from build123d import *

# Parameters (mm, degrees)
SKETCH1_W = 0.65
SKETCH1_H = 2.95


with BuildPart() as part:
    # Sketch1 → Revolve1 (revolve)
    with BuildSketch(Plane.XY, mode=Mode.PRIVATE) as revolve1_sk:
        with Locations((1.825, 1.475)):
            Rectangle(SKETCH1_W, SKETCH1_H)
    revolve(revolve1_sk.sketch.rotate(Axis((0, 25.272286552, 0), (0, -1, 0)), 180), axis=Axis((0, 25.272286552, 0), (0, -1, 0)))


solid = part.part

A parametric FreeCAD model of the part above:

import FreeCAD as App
import Part
import Sketcher


def add_polygon(sketch, points):
    """Adds a closed chain of lines whose ends are joined by coincident constraints."""
    first, n = sketch.GeometryCount, len(points)
    for a, b in zip(points, points[1:] + points[:1]):
        sketch.addGeometry(Part.LineSegment(App.Vector(*a, 0), App.Vector(*b, 0)), False)
    for i in range(n):
        sketch.addConstraint(Sketcher.Constraint("Coincident", first + i, 2, first + (i + 1) % n, 1))

doc = App.newDocument("Part")
body = doc.addObject("PartDesign::Body", "Body")

# Sketch on XY plane
sketch1 = body.newObject("Sketcher::SketchObject", "Sketch")
sketch1.AttachmentSupport = (doc.getObject("XY_Plane"), [""])
sketch1.MapMode = "FlatFace"
add_polygon(sketch1, [(1.5, 2.95), (1.5, 0), (2.15, 0), (2.15, 2.95)])  # lines 0-3
sketch1.addConstraint([
    Sketcher.Constraint("Vertical", 0),
    Sketcher.Constraint("Horizontal", 1),
    Sketcher.Constraint("Vertical", 2),
    Sketcher.Constraint("Horizontal", 3),
    Sketcher.Constraint("PointOnObject", 0, 2, -1),
    Sketcher.Constraint("DistanceX", 1, 1, 1, 2, 0.65),
    Sketcher.Constraint("DistanceY", 0, 2, 0, 1, 2.95),
    Sketcher.Constraint("DistanceX", -1, 1, 0, 2, 1.5),
])
revolution = body.newObject("PartDesign::Revolution", "Revolution")
revolution.Profile = sketch1
revolution.ReferenceAxis = (sketch1, ["V_Axis"])
revolution.Angle = 360

doc.recompute()
